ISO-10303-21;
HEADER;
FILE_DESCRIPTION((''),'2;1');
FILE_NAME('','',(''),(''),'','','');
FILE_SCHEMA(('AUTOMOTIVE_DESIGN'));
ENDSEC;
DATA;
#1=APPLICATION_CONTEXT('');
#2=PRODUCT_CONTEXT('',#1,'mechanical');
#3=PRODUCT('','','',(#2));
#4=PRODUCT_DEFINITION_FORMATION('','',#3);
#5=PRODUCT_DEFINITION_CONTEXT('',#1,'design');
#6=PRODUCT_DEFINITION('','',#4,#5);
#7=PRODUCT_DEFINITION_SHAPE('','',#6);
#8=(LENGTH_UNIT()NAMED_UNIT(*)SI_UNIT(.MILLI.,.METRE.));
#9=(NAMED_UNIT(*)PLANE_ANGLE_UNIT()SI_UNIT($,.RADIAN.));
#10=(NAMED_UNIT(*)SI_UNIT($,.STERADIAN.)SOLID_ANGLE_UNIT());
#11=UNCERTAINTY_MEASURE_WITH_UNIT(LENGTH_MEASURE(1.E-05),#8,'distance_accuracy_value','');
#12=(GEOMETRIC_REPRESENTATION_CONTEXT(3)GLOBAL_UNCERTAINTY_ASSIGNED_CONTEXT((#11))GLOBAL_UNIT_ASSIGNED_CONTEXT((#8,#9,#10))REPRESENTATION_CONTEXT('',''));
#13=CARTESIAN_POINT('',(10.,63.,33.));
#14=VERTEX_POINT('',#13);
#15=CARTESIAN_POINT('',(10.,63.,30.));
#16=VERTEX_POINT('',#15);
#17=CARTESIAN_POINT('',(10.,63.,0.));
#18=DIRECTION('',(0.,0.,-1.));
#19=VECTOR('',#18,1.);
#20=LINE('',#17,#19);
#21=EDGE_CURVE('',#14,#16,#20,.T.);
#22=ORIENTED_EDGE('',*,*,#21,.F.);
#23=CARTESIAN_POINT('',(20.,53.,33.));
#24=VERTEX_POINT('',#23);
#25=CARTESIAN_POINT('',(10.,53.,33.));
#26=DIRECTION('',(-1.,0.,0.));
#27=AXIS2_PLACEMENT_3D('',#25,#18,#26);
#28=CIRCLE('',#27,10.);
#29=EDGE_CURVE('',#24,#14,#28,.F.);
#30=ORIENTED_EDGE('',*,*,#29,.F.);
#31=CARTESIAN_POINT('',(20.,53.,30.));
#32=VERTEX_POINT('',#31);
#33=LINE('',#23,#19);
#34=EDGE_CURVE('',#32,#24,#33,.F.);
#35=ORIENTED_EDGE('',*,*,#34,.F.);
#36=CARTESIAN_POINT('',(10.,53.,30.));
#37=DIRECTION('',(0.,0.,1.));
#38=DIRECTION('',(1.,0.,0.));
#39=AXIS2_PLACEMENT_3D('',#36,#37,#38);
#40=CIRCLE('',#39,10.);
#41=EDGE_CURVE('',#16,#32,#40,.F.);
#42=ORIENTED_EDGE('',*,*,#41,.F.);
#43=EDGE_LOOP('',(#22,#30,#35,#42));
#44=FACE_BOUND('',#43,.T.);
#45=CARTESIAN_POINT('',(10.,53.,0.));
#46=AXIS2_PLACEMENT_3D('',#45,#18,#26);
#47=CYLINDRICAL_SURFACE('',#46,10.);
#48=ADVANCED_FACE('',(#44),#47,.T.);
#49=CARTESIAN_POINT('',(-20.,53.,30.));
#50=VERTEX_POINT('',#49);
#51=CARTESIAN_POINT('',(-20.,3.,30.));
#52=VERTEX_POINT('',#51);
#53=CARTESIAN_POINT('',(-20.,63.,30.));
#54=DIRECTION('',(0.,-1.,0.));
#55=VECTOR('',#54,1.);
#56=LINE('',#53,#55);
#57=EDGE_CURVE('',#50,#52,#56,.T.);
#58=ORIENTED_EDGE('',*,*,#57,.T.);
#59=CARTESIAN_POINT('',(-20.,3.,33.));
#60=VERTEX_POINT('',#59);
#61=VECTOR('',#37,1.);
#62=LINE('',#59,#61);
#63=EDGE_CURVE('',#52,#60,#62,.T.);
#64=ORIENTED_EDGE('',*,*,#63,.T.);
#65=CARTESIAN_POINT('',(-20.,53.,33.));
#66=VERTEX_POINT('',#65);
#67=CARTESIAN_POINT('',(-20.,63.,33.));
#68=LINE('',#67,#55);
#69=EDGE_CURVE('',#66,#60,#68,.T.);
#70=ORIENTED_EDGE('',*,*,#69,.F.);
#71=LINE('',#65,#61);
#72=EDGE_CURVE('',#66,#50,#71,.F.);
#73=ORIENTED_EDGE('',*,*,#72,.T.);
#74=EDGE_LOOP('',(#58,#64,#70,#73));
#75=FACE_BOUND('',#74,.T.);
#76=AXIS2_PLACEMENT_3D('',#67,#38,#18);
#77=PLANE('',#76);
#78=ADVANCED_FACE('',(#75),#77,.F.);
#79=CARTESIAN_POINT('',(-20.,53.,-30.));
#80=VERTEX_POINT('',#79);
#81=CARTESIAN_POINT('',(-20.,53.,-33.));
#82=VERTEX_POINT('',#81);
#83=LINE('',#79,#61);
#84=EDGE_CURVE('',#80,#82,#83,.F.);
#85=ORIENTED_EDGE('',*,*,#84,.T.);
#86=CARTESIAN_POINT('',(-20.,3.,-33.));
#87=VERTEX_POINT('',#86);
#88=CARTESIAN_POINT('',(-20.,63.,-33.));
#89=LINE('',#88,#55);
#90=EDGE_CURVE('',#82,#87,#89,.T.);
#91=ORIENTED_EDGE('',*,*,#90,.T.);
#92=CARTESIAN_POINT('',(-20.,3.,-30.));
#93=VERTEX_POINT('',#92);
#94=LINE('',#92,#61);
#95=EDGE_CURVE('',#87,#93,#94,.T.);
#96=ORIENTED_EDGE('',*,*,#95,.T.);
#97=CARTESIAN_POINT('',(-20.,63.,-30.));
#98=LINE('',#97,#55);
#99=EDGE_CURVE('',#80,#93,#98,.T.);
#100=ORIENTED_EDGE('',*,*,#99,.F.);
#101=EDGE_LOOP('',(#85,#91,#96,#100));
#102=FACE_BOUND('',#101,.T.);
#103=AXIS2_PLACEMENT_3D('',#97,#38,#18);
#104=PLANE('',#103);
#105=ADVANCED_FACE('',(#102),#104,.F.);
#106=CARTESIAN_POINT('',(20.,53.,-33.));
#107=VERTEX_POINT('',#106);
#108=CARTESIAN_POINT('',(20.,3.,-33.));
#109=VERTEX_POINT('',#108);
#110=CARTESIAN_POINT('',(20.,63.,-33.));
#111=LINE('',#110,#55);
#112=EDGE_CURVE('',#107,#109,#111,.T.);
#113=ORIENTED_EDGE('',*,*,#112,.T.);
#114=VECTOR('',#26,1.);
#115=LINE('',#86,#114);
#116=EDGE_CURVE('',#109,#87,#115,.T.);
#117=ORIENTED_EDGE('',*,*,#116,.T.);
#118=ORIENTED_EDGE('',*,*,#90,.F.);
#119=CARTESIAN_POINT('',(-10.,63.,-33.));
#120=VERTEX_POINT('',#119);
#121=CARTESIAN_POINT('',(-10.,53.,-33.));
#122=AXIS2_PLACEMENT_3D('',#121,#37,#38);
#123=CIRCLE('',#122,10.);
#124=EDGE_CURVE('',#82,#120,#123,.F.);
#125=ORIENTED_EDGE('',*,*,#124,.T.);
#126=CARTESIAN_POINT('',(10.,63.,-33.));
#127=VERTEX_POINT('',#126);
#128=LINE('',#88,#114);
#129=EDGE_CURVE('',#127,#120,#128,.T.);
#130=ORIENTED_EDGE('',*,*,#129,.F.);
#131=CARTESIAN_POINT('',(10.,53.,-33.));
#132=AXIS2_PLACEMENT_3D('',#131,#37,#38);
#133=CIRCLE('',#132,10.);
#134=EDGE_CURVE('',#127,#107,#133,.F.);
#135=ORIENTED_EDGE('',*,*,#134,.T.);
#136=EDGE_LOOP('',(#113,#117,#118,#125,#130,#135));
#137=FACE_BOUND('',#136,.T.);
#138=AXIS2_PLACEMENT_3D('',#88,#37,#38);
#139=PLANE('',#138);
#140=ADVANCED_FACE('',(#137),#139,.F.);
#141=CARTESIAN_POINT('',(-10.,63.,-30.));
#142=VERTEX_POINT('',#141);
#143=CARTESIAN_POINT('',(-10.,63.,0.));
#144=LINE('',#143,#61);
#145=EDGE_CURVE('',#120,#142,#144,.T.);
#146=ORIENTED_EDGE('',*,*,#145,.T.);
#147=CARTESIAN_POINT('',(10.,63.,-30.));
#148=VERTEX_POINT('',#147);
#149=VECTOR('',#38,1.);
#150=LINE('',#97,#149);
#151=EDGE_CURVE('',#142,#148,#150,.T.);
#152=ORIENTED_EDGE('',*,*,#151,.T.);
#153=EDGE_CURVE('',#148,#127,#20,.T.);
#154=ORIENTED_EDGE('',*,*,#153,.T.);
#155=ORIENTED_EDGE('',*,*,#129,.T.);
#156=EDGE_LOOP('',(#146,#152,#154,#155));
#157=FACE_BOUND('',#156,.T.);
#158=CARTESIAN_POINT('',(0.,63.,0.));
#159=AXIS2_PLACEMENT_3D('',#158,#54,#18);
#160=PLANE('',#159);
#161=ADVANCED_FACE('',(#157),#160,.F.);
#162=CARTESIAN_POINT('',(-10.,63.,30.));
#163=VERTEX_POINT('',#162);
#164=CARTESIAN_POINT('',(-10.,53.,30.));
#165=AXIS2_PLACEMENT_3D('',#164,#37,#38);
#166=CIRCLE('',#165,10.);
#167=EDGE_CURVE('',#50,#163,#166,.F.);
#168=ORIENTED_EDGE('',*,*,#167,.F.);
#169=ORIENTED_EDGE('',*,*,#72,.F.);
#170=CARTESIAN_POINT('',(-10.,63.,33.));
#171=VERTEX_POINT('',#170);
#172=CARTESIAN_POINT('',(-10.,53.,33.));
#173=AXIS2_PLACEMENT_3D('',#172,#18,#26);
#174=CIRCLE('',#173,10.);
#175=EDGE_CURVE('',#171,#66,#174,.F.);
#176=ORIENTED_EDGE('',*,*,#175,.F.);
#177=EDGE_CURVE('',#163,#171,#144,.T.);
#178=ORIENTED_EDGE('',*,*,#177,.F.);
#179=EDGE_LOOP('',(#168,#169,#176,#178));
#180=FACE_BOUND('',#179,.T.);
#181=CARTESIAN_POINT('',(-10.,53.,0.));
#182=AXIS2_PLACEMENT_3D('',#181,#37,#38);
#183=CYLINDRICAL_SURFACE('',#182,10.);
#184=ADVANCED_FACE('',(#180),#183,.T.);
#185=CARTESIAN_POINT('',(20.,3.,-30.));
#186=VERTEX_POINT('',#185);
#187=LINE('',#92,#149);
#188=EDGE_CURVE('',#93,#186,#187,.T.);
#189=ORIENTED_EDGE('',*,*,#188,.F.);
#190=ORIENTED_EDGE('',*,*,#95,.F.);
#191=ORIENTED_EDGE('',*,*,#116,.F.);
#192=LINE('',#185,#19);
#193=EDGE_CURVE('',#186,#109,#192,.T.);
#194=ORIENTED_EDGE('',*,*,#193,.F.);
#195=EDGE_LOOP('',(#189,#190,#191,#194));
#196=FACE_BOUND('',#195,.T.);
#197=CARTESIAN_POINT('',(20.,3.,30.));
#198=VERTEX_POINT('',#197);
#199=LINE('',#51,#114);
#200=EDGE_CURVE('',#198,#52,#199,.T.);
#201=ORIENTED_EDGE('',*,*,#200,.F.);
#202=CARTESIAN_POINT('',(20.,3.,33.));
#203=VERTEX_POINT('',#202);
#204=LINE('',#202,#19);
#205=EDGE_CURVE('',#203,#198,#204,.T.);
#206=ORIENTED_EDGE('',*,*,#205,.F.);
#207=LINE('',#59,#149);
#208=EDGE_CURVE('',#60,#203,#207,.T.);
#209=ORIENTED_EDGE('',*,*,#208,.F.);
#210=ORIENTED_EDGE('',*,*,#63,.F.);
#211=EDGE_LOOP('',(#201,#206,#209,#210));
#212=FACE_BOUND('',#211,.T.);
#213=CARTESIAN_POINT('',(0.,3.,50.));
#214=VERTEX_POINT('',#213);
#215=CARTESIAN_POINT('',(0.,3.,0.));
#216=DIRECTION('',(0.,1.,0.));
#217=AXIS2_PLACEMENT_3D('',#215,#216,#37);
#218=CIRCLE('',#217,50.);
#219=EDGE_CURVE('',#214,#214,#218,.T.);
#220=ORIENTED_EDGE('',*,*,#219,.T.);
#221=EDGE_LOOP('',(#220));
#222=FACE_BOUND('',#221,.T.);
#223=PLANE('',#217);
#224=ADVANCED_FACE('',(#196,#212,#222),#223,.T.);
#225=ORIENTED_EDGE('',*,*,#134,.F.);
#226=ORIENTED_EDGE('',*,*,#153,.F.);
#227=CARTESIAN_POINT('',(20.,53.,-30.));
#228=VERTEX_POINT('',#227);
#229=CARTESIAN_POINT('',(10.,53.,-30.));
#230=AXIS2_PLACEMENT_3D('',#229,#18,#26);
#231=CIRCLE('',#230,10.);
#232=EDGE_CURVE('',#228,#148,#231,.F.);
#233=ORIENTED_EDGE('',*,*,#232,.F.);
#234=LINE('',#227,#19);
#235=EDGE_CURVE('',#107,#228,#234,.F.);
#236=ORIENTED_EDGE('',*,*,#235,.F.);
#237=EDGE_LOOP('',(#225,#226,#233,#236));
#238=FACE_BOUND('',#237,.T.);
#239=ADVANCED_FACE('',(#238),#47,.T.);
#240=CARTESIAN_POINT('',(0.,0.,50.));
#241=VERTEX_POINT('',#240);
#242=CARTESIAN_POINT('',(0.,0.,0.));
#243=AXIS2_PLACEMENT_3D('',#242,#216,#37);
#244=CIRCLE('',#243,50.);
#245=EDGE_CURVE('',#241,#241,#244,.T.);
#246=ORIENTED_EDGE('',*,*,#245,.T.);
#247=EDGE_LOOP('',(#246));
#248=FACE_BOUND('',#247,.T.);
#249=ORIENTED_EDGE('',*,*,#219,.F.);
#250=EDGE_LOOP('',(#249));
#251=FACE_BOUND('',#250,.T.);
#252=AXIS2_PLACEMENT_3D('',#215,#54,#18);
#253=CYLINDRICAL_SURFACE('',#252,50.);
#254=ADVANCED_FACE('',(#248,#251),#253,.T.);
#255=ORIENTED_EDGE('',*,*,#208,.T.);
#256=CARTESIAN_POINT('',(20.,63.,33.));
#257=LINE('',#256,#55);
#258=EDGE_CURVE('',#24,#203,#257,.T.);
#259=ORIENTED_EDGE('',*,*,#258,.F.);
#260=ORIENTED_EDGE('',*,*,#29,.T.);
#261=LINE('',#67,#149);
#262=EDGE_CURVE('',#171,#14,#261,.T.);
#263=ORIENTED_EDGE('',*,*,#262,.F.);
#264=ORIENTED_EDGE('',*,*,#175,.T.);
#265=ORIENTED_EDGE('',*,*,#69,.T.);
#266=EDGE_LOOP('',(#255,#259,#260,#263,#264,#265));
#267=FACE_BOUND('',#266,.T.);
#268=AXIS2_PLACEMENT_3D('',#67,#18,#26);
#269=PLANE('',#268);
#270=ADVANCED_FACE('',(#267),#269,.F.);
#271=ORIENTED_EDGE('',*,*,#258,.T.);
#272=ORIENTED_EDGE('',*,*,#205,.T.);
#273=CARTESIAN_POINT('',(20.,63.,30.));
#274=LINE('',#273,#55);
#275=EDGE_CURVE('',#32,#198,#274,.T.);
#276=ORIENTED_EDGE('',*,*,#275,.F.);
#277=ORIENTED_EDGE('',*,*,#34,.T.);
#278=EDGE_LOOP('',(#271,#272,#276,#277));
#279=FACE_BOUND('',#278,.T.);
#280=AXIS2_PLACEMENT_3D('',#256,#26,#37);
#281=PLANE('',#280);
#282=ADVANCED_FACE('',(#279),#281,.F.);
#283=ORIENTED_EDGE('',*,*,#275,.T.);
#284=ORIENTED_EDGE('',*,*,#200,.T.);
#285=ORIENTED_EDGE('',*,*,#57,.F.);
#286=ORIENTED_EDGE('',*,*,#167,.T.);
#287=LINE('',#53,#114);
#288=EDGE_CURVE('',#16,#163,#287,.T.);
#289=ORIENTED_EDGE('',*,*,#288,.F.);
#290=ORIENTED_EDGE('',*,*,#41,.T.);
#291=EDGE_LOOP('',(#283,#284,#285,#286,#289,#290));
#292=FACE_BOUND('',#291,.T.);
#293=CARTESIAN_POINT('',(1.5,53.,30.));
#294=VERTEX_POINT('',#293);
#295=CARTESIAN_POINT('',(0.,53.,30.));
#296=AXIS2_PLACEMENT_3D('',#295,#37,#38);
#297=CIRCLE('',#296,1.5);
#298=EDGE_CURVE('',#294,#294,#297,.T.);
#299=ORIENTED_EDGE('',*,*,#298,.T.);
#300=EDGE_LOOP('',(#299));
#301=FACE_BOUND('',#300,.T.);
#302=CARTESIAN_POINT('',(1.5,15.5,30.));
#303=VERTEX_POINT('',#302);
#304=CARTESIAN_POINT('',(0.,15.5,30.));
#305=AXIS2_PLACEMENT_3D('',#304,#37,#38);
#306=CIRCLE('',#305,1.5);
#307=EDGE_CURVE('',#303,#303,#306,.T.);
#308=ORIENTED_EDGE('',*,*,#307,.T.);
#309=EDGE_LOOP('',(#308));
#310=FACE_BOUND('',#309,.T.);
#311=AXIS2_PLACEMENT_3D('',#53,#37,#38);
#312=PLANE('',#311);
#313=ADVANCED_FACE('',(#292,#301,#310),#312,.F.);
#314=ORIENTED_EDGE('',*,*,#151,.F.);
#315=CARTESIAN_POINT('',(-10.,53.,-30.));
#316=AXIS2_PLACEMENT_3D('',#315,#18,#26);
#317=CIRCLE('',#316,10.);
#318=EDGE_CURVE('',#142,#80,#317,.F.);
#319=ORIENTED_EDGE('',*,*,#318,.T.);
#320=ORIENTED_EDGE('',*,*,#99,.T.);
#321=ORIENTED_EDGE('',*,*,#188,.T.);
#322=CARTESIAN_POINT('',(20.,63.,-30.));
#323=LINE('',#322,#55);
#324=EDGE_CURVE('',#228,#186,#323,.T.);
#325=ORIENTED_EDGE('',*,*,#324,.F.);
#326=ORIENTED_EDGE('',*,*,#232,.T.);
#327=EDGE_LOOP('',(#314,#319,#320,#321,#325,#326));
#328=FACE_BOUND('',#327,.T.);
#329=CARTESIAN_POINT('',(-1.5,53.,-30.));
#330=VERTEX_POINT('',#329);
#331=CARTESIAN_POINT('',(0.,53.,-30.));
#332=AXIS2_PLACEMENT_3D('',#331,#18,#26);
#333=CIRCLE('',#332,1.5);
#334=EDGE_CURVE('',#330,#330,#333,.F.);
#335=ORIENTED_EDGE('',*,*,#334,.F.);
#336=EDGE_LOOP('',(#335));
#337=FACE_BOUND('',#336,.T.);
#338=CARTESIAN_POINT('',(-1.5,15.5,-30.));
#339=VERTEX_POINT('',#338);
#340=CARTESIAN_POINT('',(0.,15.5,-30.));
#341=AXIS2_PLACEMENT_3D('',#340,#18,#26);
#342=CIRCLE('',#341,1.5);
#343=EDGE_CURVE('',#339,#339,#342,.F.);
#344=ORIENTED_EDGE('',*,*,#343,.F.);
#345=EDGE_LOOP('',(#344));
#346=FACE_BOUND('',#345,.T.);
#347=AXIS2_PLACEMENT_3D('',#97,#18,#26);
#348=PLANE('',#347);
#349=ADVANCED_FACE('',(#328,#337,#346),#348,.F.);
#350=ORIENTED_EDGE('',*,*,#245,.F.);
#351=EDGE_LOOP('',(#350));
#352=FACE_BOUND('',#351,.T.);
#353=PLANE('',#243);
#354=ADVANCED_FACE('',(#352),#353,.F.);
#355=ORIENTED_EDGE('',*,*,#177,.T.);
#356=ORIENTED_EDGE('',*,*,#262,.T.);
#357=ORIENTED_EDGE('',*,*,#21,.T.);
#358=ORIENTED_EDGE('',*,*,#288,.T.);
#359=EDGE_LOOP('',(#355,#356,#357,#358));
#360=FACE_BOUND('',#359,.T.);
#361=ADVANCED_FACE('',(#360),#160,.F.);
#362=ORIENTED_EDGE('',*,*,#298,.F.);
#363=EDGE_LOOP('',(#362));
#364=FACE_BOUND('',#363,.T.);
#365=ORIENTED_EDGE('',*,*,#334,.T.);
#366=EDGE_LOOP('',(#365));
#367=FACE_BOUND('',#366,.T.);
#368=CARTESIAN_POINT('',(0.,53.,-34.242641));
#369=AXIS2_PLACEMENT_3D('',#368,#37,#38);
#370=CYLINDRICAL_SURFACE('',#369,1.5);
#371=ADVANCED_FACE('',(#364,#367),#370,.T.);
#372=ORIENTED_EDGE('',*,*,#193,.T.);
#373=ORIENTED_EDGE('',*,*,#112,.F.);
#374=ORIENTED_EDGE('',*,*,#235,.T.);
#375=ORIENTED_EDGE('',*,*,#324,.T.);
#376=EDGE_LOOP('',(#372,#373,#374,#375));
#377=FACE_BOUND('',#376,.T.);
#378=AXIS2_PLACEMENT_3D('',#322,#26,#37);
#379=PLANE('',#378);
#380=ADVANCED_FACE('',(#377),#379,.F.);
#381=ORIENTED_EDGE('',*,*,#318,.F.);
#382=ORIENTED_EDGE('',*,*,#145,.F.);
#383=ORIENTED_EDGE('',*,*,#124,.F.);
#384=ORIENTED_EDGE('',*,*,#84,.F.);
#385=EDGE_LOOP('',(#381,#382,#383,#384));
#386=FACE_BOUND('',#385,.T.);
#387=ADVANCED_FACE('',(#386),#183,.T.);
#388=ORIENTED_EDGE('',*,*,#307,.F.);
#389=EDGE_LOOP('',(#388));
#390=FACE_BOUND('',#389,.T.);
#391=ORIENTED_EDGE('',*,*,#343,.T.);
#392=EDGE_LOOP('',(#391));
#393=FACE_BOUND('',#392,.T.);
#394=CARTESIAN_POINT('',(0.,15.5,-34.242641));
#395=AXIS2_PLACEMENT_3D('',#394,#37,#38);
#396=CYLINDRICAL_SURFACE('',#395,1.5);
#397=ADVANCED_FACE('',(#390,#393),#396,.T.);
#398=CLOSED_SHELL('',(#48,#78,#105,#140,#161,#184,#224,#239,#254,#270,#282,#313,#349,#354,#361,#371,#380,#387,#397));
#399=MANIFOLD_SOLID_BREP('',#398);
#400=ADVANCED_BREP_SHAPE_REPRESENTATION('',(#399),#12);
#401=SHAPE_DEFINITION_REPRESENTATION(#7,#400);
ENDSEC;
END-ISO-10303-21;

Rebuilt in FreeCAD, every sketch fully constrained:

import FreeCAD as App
import Part
import Sketcher

V = App.Vector
Q = App.Units.Quantity


def edges_at(feature, points):
    """Names of the edges that pass closest to the given points."""
    edges = feature.Shape.Edges
    near = lambda p: min(range(len(edges)), key=lambda i: edges[i].distToShape(Part.Vertex(*p))[0])
    return sorted({f"Edge{near(p) + 1}" for p in points})

doc = App.newDocument("Part")
body = doc.addObject("PartDesign::Body", "Body")

sketch1 = body.newObject("Sketcher::SketchObject", "Sketch")
sketch1.AttachmentSupport = (doc.getObject("XZ_Plane"), [""])
sketch1.MapMode = "FlatFace"
sketch1.addGeometry(Part.Circle(V(0, 0, 0), V(0, 0, 1), 50), False)
sketch1.addConstraint(Sketcher.Constraint("Coincident", 0, 3, -1, 1))
sketch1.addConstraint(Sketcher.Constraint("Diameter", 0, Q("100 mm")))
pad1 = body.newObject("PartDesign::Pad", "Pad")
pad1.Profile = sketch1
pad1.Length = 3
pad1.Reversed = True

sketch2 = body.newObject("Sketcher::SketchObject", "Sketch001")
sketch2.AttachmentSupport = (doc.getObject("XZ_Plane"), [""])
sketch2.MapMode = "FlatFace"
sketch2.AttachmentOffset = App.Placement(V(0, 0, -3), App.Rotation())
sketch2.addGeometry(Part.LineSegment(V(-20, 30, 0), V(-20, 33, 0)), False)
sketch2.addGeometry(Part.LineSegment(V(-20, 33, 0), V(20, 33, 0)), False)
sketch2.addGeometry(Part.LineSegment(V(20, 33, 0), V(20, 30, 0)), False)
sketch2.addGeometry(Part.LineSegment(V(20, 30, 0), V(-20, 30, 0)), False)
sketch2.addGeometry(Part.LineSegment(V(-20, -33, 0), V(-20, -30, 0)), False)
sketch2.addGeometry(Part.LineSegment(V(-20, -30, 0), V(20, -30, 0)), False)
sketch2.addGeometry(Part.LineSegment(V(20, -30, 0), V(20, -33, 0)), False)
sketch2.addGeometry(Part.LineSegment(V(20, -33, 0), V(-20, -33, 0)), False)
sketch2.addConstraint(Sketcher.Constraint("Coincident", 0, 2, 1, 1))
sketch2.addConstraint(Sketcher.Constraint("Coincident", 1, 2, 2, 1))
sketch2.addConstraint(Sketcher.Constraint("Coincident", 2, 2, 3, 1))
sketch2.addConstraint(Sketcher.Constraint("Coincident", 3, 2, 0, 1))
sketch2.addConstraint(Sketcher.Constraint("Coincident", 4, 2, 5, 1))
sketch2.addConstraint(Sketcher.Constraint("Coincident", 5, 2, 6, 1))
sketch2.addConstraint(Sketcher.Constraint("Coincident", 6, 2, 7, 1))
sketch2.addConstraint(Sketcher.Constraint("Coincident", 7, 2, 4, 1))
sketch2.addConstraint(Sketcher.Constraint("Vertical", 0))
sketch2.addConstraint(Sketcher.Constraint("Horizontal", 1))
sketch2.addConstraint(Sketcher.Constraint("Vertical", 2))
sketch2.addConstraint(Sketcher.Constraint("Horizontal", 3))
sketch2.addConstraint(Sketcher.Constraint("Vertical", 4))
sketch2.addConstraint(Sketcher.Constraint("Horizontal", 5))
sketch2.addConstraint(Sketcher.Constraint("Vertical", 6))
sketch2.addConstraint(Sketcher.Constraint("Horizontal", 7))
sketch2.addConstraint(Sketcher.Constraint("Symmetric", 2, 2, 4, 2, -1, 1))
sketch2.addConstraint(Sketcher.Constraint("Symmetric", 0, 2, 6, 2, -1, 1))
sketch2.addConstraint(Sketcher.Constraint("Vertical", 3, 2, 4, 2))
sketch2.addConstraint(Sketcher.Constraint("DistanceX", 1, 1, 1, 2, Q("40 mm")))
sketch2.addConstraint(Sketcher.Constraint("DistanceY", 0, 1, 0, 2, Q("3 mm")))
sketch2.addConstraint(Sketcher.Constraint("DistanceY", -1, 1, 0, 2, Q("33 mm")))
pad2 = body.newObject("PartDesign::Pad", "Pad001")
pad2.Profile = sketch2
pad2.Length = 60
pad2.Reversed = True

sketch3 = body.newObject("Sketcher::SketchObject", "Sketch002")
sketch3.AttachmentSupport = (doc.getObject("XY_Plane"), [""])
sketch3.MapMode = "FlatFace"
sketch3.AttachmentOffset = App.Placement(V(0, 0, 33), App.Rotation())
sketch3.addGeometry(Part.Circle(V(0, 53, 0), V(0, 0, 1), 1.5), False)
sketch3.addGeometry(Part.Circle(V(0, 15.5, 0), V(0, 0, 1), 1.5), False)
sketch3.addConstraint(Sketcher.Constraint("Equal", 0, 1))
sketch3.addConstraint(Sketcher.Constraint("PointOnObject", 0, 3, -2))
sketch3.addConstraint(Sketcher.Constraint("PointOnObject", 1, 3, -2))
sketch3.addConstraint(Sketcher.Constraint("Diameter", 0, Q("3 mm")))
sketch3.addConstraint(Sketcher.Constraint("DistanceY", -1, 1, 0, 3, Q("53 mm")))
sketch3.addConstraint(Sketcher.Constraint("DistanceY", -1, 1, 1, 3, Q("15.5 mm")))
pad3 = body.newObject("PartDesign::Pad", "Pad002")
pad3.Profile = sketch3
pad3.Length = 63
pad3.Reversed = True
doc.recompute()

fillet = body.newObject("PartDesign::Fillet", "Fillet")
fillet.Base = (pad3, edges_at(pad3, [
    (-20, 63, -31.5),
    (20, 63, -31.5),
    (-20, 63, 31.5),
    (20, 63, 31.5),
]))
fillet.Radius = 10

doc.recompute()
